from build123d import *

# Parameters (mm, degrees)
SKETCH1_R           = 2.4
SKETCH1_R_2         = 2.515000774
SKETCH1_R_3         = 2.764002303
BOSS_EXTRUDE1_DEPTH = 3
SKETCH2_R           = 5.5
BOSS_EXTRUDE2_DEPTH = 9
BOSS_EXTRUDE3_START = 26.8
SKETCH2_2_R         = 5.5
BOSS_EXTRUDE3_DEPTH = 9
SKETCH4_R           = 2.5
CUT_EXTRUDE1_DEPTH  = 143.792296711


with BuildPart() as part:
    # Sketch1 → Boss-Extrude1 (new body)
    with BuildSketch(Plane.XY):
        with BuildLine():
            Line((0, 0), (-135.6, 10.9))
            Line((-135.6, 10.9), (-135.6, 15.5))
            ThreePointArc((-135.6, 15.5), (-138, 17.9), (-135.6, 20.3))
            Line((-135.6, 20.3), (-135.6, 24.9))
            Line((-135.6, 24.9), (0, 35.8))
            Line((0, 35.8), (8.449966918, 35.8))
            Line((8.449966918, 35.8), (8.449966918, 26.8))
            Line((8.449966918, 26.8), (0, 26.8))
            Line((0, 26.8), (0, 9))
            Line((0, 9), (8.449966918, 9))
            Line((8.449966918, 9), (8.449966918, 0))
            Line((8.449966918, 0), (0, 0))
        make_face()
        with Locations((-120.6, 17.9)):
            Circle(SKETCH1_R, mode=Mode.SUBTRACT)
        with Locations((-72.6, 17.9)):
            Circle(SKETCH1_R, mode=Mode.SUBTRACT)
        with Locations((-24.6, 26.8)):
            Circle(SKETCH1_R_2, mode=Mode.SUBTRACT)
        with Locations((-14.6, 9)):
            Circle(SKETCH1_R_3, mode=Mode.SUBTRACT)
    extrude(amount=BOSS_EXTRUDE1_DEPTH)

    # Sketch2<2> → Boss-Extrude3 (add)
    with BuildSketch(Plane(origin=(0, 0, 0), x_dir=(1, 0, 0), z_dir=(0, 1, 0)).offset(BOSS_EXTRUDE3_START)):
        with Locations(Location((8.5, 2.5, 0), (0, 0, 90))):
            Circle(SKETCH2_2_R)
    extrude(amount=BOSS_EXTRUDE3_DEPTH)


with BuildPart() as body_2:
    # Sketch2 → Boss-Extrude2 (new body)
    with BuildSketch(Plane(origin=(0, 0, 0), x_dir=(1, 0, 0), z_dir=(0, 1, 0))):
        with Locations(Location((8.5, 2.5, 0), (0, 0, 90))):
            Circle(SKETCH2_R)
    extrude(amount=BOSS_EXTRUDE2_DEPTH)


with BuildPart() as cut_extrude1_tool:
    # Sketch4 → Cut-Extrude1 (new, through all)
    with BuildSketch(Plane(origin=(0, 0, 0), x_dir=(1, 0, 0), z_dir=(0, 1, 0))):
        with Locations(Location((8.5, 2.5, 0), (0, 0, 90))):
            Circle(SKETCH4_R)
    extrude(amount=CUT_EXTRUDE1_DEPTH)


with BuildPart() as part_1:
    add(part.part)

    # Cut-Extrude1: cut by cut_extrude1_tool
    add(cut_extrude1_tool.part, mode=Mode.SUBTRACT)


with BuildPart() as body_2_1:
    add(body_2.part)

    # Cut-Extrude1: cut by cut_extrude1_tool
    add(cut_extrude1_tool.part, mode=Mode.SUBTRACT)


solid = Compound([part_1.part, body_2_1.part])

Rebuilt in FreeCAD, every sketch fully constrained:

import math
import FreeCAD as App
import Part
import Sketcher

V = App.Vector

doc = App.newDocument("Part")
body = doc.addObject("PartDesign::Body", "Body")

# Sketch on XY plane
sketch1 = body.newObject("Sketcher::SketchObject", "Sketch")
sketch1.AttachmentSupport = (doc.getObject("XY_Plane"), [""])
sketch1.MapMode = "FlatFace"
sketch1.addGeometry([
    Part.LineSegment(V(-135.6, 10.9, 0), V(0, 0, 0)),  # 0
    Part.LineSegment(V(0, 0, 0), V(8.4, 0, 0)),  # 1
    Part.LineSegment(V(8.4, 0, 0), V(8.4, 9, 0)),  # 2
    Part.LineSegment(V(8.4, 9, 0), V(0, 9, 0)),  # 3
    Part.LineSegment(V(0, 9, 0), V(0, 26.8, 0)),  # 4
    Part.LineSegment(V(0, 26.8, 0), V(8.4, 26.8, 0)),  # 5
    Part.LineSegment(V(8.4, 26.8, 0), V(8.4, 35.8, 0)),  # 6
    Part.LineSegment(V(8.4, 35.8, 0), V(0, 35.8, 0)),  # 7
    Part.LineSegment(V(0, 35.8, 0), V(-135.6, 24.9, 0)),  # 8
    Part.LineSegment(V(-135.6, 24.9, 0), V(-135.6, 20.3, 0)),  # 9
    Part.ArcOfCircle(Part.Circle(V(-135.6, 17.9, 0), V(0, 0, 1), 2.4), math.radians(90), math.radians(270)),  # 10
    Part.LineSegment(V(-135.6, 15.5, 0), V(-135.6, 10.9, 0)),  # 11
    Part.Circle(V(-14.6, 9, 0), V(0, 0, 1), 2.8),  # 12
    Part.Circle(V(-24.6, 26.8, 0), V(0, 0, 1), 2.5),  # 13
    Part.Circle(V(-72.6, 17.9, 0), V(0, 0, 1), 2.4),  # 14
    Part.Circle(V(-120.6, 17.9, 0), V(0, 0, 1), 2.4),  # 15
], False)
sketch1.addConstraint([
    Sketcher.Constraint("Coincident", 0, 2, 1, 1),
    Sketcher.Constraint("Coincident", 1, 2, 2, 1),
    Sketcher.Constraint("Coincident", 2, 2, 3, 1),
    Sketcher.Constraint("Coincident", 3, 2, 4, 1),
    Sketcher.Constraint("Coincident", 4, 2, 5, 1),
    Sketcher.Constraint("Coincident", 5, 2, 6, 1),
    Sketcher.Constraint("Coincident", 6, 2, 7, 1),
    Sketcher.Constraint("Coincident", 7, 2, 8, 1),
    Sketcher.Constraint("Coincident", 8, 2, 9, 1),
    Sketcher.Constraint("Coincident", 9, 2, 10, 1),
    Sketcher.Constraint("Coincident", 10, 2, 11, 1),
    Sketcher.Constraint("Coincident", 11, 2, 0, 1),
    Sketcher.Constraint("Horizontal", 1),
    Sketcher.Constraint("Vertical", 2),
    Sketcher.Constraint("Horizontal", 3),
    Sketcher.Constraint("Vertical", 4),
    Sketcher.Constraint("Horizontal", 5),
    Sketcher.Constraint("Vertical", 6),
    Sketcher.Constraint("Horizontal", 7),
    Sketcher.Constraint("Vertical", 9),
    Sketcher.Constraint("Vertical", 11),
    Sketcher.Constraint("Coincident", 0, 2, -1, 1),
    Sketcher.Constraint("Equal", 10, 14),
    Sketcher.Constraint("Equal", 14, 15),
    Sketcher.Constraint("PointOnObject", 3, 2, -2),
    Sketcher.Constraint("PointOnObject", 7, 2, -2),
    Sketcher.Constraint("Horizontal", 10, 3, 14, 3),
    Sketcher.Constraint("Horizontal", 14, 3, 15, 3),
    Sketcher.Constraint("Horizontal", 12, 3, 2, 2),
    Sketcher.Constraint("Horizontal", 13, 3, 4, 2),
    Sketcher.Constraint("Vertical", 2, 2, 5, 2),
    Sketcher.Constraint("Vertical", 10, 3, 8, 2),
    Sketcher.Constraint("Vertical", 9, 2, 10, 2),
    Sketcher.Constraint("Equal", 2, 6),
    Sketcher.Constraint("Equal", 9, 11),
    Sketcher.Constraint("Equal", 0, 8),
    Sketcher.Constraint("Diameter", 14, 4.8),
    Sketcher.Constraint("Diameter", 13, 5.030002),
    Sketcher.Constraint("DistanceY", 2, 1, 2, 2, 9.0),
    Sketcher.Constraint("DistanceY", 4, 1, 4, 2, 17.8),
    Sketcher.Constraint("DistanceY", 9, 2, 9, 1, 4.6),
    Sketcher.Constraint("DistanceX", 10, 3, 12, 3, 121.0),
    Sketcher.Constraint("DistanceX", 13, 3, 12, 3, 10.0),
    Sketcher.Constraint("DistanceX", 14, 3, 13, 3, 48.0),
    Sketcher.Constraint("DistanceX", 10, 3, 15, 3, 15.0),
    Sketcher.Constraint("DistanceX", 10, 3, -1, 1, 135.6),
    Sketcher.Constraint("Diameter", 12, 5.528005),
    Sketcher.Constraint("DistanceX", 1, 1, 1, 2, 8.449967),
])
pad1 = body.newObject("PartDesign::Pad", "Pad")
pad1.Profile = sketch1
pad1.Length = 3

# Sketch on XZ plane
sketch2 = body.newObject("Sketcher::SketchObject", "Sketch001")
sketch2.AttachmentSupport = (doc.getObject("XZ_Plane"), [""])
sketch2.MapMode = "FlatFace"
sketch2.AttachmentOffset = App.Placement(V(0, 0, -26.8), App.Rotation())
sketch2.addGeometry(Part.Circle(V(8, -2, 0), V(0, 0, 1), 6), False)
sketch2.addConstraint([
    Sketcher.Constraint("Diameter", 0, 11.0),
    Sketcher.Constraint("DistanceX", -1, 1, 0, 3, 8.5),
    Sketcher.Constraint("DistanceY", 0, 3, -1, 1, 2.5),
])
pad2 = body.newObject("PartDesign::Pad", "Pad001")
pad2.Profile = sketch2
pad2.Length = 9
pad2.Reversed = True
body2 = doc.addObject("PartDesign::Body", "Body001")

# Sketch on XZ plane
sketch3 = body2.newObject("Sketcher::SketchObject", "Sketch002")
sketch3.AttachmentSupport = (doc.getObject("XZ_Plane001"), [""])
sketch3.MapMode = "FlatFace"
sketch3.addGeometry(Part.Circle(V(8, -2, 0), V(0, 0, 1), 6), False)
sketch3.addConstraint([
    Sketcher.Constraint("Diameter", 0, 11.0),
    Sketcher.Constraint("DistanceX", -1, 1, 0, 3, 8.5),
    Sketcher.Constraint("DistanceY", 0, 3, -1, 1, 2.5),
])
pad3 = body2.newObject("PartDesign::Pad", "Pad002")
pad3.Profile = sketch3
pad3.Length = 9
pad3.Reversed = True
body3 = doc.addObject("PartDesign::Body", "Body002")

# Sketch on XZ plane
sketch4 = body3.newObject("Sketcher::SketchObject", "Sketch003")
sketch4.AttachmentSupport = (doc.getObject("XZ_Plane002"), [""])
sketch4.MapMode = "FlatFace"
sketch4.addGeometry(Part.Circle(V(8.5, -2.5, 0), V(0, 0, 1), 2.5), False)
sketch4.addConstraint([
    Sketcher.Constraint("Diameter", 0, 5.0),
    Sketcher.Constraint("DistanceX", -1, 1, 0, 3, 8.5),
    Sketcher.Constraint("DistanceY", 0, 3, -1, 1, 2.5),
])
pad4 = body3.newObject("PartDesign::Pad", "Pad003")
pad4.Profile = sketch4
pad4.Length = 143.792297
pad4.Reversed = True
doc.recompute()

body4 = doc.addObject("PartDesign::Body", "Body003")
body4.BaseFeature = body3
boolean = body.newObject("PartDesign::Boolean", "Boolean")
boolean.Type = "Cut"
boolean.addObjects([body4])
doc.recompute()

boolean2 = body2.newObject("PartDesign::Boolean", "Boolean001")
boolean2.Type = "Cut"
boolean2.addObjects([body3])

doc.recompute()
